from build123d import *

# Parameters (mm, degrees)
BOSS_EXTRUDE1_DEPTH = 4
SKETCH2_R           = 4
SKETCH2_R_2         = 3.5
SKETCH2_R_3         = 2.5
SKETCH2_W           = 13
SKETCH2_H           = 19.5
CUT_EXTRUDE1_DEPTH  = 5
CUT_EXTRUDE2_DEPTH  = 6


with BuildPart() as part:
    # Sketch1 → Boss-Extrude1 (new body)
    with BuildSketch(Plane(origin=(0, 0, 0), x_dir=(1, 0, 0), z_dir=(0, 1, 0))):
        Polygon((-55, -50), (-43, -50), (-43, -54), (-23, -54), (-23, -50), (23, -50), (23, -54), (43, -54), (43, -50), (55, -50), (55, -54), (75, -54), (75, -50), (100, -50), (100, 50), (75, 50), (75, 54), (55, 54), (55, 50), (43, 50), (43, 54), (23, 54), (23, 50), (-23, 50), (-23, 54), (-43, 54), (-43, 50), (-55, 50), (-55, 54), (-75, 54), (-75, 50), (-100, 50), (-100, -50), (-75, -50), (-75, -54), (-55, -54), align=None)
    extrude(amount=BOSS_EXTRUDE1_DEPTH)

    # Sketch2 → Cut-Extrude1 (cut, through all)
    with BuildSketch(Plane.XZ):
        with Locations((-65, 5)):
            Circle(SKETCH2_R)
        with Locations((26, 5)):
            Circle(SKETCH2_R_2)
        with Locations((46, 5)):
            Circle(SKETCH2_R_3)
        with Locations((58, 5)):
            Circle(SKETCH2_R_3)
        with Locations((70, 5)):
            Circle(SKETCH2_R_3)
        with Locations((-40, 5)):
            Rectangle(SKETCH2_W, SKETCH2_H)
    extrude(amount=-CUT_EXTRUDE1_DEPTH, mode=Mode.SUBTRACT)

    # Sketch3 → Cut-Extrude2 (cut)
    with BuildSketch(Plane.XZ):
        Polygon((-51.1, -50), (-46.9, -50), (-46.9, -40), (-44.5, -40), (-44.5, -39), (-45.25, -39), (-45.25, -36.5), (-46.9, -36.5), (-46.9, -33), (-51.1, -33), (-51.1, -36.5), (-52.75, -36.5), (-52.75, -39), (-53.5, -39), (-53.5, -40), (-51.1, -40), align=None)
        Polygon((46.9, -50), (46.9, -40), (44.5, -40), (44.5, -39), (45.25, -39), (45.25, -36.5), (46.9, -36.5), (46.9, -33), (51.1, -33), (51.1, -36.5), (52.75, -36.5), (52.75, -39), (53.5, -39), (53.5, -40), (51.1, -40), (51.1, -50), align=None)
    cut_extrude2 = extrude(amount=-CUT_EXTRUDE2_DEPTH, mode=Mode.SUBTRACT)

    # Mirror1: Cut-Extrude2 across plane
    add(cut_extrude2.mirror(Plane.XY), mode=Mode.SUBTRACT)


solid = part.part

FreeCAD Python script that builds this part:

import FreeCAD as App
import Part
import Sketcher


def add_polygon(sketch, points):
    """Adds a closed chain of lines whose ends are joined by coincident constraints."""
    first, n = sketch.GeometryCount, len(points)
    for a, b in zip(points, points[1:] + points[:1]):
        sketch.addGeometry(Part.LineSegment(App.Vector(*a, 0), App.Vector(*b, 0)), False)
    for i in range(n):
        sketch.addConstraint(Sketcher.Constraint("Coincident", first + i, 2, first + (i + 1) % n, 1))

doc = App.newDocument("Part")
body = doc.addObject("PartDesign::Body", "Body")

# Sketch on XZ plane
sketch1 = body.newObject("Sketcher::SketchObject", "Sketch")
sketch1.AttachmentSupport = (doc.getObject("XZ_Plane"), [""])
sketch1.MapMode = "FlatFace"
add_polygon(sketch1, [(-55, 50), (-43, 50), (-43, 54), (-23, 54), (-23, 50), (23, 50), (23, 54), (43, 54), (43, 50), (55, 50), (55, 54), (75, 54), (75, 50), (100, 50), (100, -50), (75, -50), (75, -54), (55, -54), (55, -50), (43, -50), (43, -54), (23, -54), (23, -50), (-23, -50), (-23, -54), (-43, -54), (-43, -50), (-55, -50), (-55, -54), (-75, -54), (-75, -50), (-100, -50), (-100, 50), (-75, 50), (-75, 54), (-55, 54)])  # lines 0-35
sketch1.addConstraint(Sketcher.Constraint("Horizontal", 0))
sketch1.addConstraint(Sketcher.Constraint("Vertical", 1))
sketch1.addConstraint(Sketcher.Constraint("Horizontal", 2))
sketch1.addConstraint(Sketcher.Constraint("Vertical", 3))
sketch1.addConstraint(Sketcher.Constraint("Horizontal", 4))
sketch1.addConstraint(Sketcher.Constraint("Vertical", 5))
sketch1.addConstraint(Sketcher.Constraint("Horizontal", 6))
sketch1.addConstraint(Sketcher.Constraint("Vertical", 7))
sketch1.addConstraint(Sketcher.Constraint("Horizontal", 8))
sketch1.addConstraint(Sketcher.Constraint("Vertical", 9))
sketch1.addConstraint(Sketcher.Constraint("Horizontal", 10))
sketch1.addConstraint(Sketcher.Constraint("Vertical", 11))
sketch1.addConstraint(Sketcher.Constraint("Horizontal", 12))
sketch1.addConstraint(Sketcher.Constraint("Vertical", 13))
sketch1.addConstraint(Sketcher.Constraint("Horizontal", 14))
sketch1.addConstraint(Sketcher.Constraint("Vertical", 15))
sketch1.addConstraint(Sketcher.Constraint("Horizontal", 16))
sketch1.addConstraint(Sketcher.Constraint("Vertical", 17))
sketch1.addConstraint(Sketcher.Constraint("Horizontal", 18))
sketch1.addConstraint(Sketcher.Constraint("Vertical", 19))
sketch1.addConstraint(Sketcher.Constraint("Horizontal", 20))
sketch1.addConstraint(Sketcher.Constraint("Vertical", 21))
sketch1.addConstraint(Sketcher.Constraint("Horizontal", 22))
sketch1.addConstraint(Sketcher.Constraint("Vertical", 23))
sketch1.addConstraint(Sketcher.Constraint("Horizontal", 24))
sketch1.addConstraint(Sketcher.Constraint("Vertical", 25))
sketch1.addConstraint(Sketcher.Constraint("Horizontal", 26))
sketch1.addConstraint(Sketcher.Constraint("Vertical", 27))
sketch1.addConstraint(Sketcher.Constraint("Horizontal", 28))
sketch1.addConstraint(Sketcher.Constraint("Vertical", 29))
sketch1.addConstraint(Sketcher.Constraint("Horizontal", 30))
sketch1.addConstraint(Sketcher.Constraint("Vertical", 31))
sketch1.addConstraint(Sketcher.Constraint("Horizontal", 32))
sketch1.addConstraint(Sketcher.Constraint("Vertical", 33))
sketch1.addConstraint(Sketcher.Constraint("Horizontal", 34))
sketch1.addConstraint(Sketcher.Constraint("Vertical", 35))
sketch1.addConstraint(Sketcher.Constraint("Symmetric", 0, 2, 18, 2, -1, 1))
sketch1.addConstraint(Sketcher.Constraint("Symmetric", 2, 2, 20, 2, -1, 1))
sketch1.addConstraint(Sketcher.Constraint("Symmetric", 4, 2, 22, 2, -1, 1))
sketch1.addConstraint(Sketcher.Constraint("Symmetric", 6, 2, 24, 2, -1, 1))
sketch1.addConstraint(Sketcher.Constraint("Symmetric", 8, 2, 26, 2, -1, 1))
sketch1.addConstraint(Sketcher.Constraint("Symmetric", 10, 2, 28, 2, -1, 1))
sketch1.addConstraint(Sketcher.Constraint("Symmetric", 12, 2, 30, 2, -1, 1))
sketch1.addConstraint(Sketcher.Constraint("Symmetric", 14, 2, 32, 2, -1, 1))
sketch1.addConstraint(Sketcher.Constraint("Symmetric", 16, 2, 34, 2, -1, 1))
sketch1.addConstraint(Sketcher.Constraint("Symmetric", 2, 2, 5, 2, -2))
sketch1.addConstraint(Sketcher.Constraint("Symmetric", 0, 2, 7, 2, -2))
sketch1.addConstraint(Sketcher.Constraint("Symmetric", 16, 2, 27, 2, -2))
sketch1.addConstraint(Sketcher.Constraint("Symmetric", 14, 2, 29, 2, -2))
sketch1.addConstraint(Sketcher.Constraint("Horizontal", 0, 2, 3, 2))
sketch1.addConstraint(Sketcher.Constraint("Horizontal", 6, 2, 9, 2))
sketch1.addConstraint(Sketcher.Constraint("Horizontal", 8, 2, 11, 2))
sketch1.addConstraint(Sketcher.Constraint("Equal", 6, 10))
sketch1.addConstraint(Sketcher.Constraint("DistanceX", 0, 1, 0, 2, 12.0))
sketch1.addConstraint(Sketcher.Constraint("DistanceX", 2, 1, 2, 2, 20.0))
sketch1.addConstraint(Sketcher.Constraint("DistanceX", 4, 1, 4, 2, 46.0))
sketch1.addConstraint(Sketcher.Constraint("DistanceX", 12, 1, 12, 2, 25.0))
sketch1.addConstraint(Sketcher.Constraint("DistanceY", 1, 1, 1, 2, 4.0))
sketch1.addConstraint(Sketcher.Constraint("DistanceY", 13, 2, 13, 1, 100.0))
pad1 = body.newObject("PartDesign::Pad", "Pad")
pad1.Profile = sketch1
pad1.Length = 4
pad1.Reversed = True

# Sketch on XZ plane
sketch2 = body.newObject("Sketcher::SketchObject", "Sketch001")
sketch2.AttachmentSupport = (doc.getObject("XZ_Plane"), [""])
sketch2.MapMode = "FlatFace"
sketch2.addGeometry(Part.Circle(App.Vector(-65, 5, 0), App.Vector(0, 0, 1), 4), False)  # 0
sketch2.addGeometry(Part.Circle(App.Vector(26, 5, 0), App.Vector(0, 0, 1), 3.5), False)  # 1
sketch2.addGeometry(Part.Circle(App.Vector(46, 5, 0), App.Vector(0, 0, 1), 2.5), False)  # 2
sketch2.addGeometry(Part.Circle(App.Vector(58, 5, 0), App.Vector(0, 0, 1), 2.5), False)  # 3
sketch2.addGeometry(Part.Circle(App.Vector(70, 5, 0), App.Vector(0, 0, 1), 2.5), False)  # 4
add_polygon(sketch2, [(-46.5, 14.8), (-46.5, -4.8), (-33.5, -4.8), (-33.5, 14.8)])  # lines 5-8
sketch2.addConstraint(Sketcher.Constraint("Vertical", 5))
sketch2.addConstraint(Sketcher.Constraint("Horizontal", 6))
sketch2.addConstraint(Sketcher.Constraint("Vertical", 7))
sketch2.addConstraint(Sketcher.Constraint("Horizontal", 8))
sketch2.addConstraint(Sketcher.Constraint("Equal", 2, 3))
sketch2.addConstraint(Sketcher.Constraint("Equal", 3, 4))
sketch2.addConstraint(Sketcher.Constraint("Horizontal", 0, 3, 1, 3))
sketch2.addConstraint(Sketcher.Constraint("Horizontal", 1, 3, 2, 3))
sketch2.addConstraint(Sketcher.Constraint("Horizontal", 2, 3, 3, 3))
sketch2.addConstraint(Sketcher.Constraint("Horizontal", 3, 3, 4, 3))
sketch2.addConstraint(Sketcher.Constraint("Diameter", 0, 8.0))
sketch2.addConstraint(Sketcher.Constraint("Diameter", 1, 7.0))
sketch2.addConstraint(Sketcher.Constraint("Diameter", 2, 5.0))
sketch2.addConstraint(Sketcher.Constraint("DistanceX", 6, 1, 6, 2, 13.0))
sketch2.addConstraint(Sketcher.Constraint("DistanceY", 5, 2, 5, 1, 19.5))
sketch2.addConstraint(Sketcher.Constraint("DistanceX", 0, 3, -1, 1, 65.0))
sketch2.addConstraint(Sketcher.Constraint("DistanceY", -1, 1, 0, 3, 5.0))
sketch2.addConstraint(Sketcher.Constraint("DistanceX", -1, 1, 1, 3, 26.0))
sketch2.addConstraint(Sketcher.Constraint("DistanceX", -1, 1, 2, 3, 46.0))
sketch2.addConstraint(Sketcher.Constraint("DistanceX", -1, 1, 3, 3, 58.0))
sketch2.addConstraint(Sketcher.Constraint("DistanceX", -1, 1, 4, 3, 70.0))
sketch2.addConstraint(Sketcher.Constraint("DistanceX", 5, 2, -1, 1, 46.5))
sketch2.addConstraint(Sketcher.Constraint("DistanceY", 5, 2, -1, 1, 4.75))
pocket1 = body.newObject("PartDesign::Pocket", "Pocket")
pocket1.Profile = sketch2
pocket1.Type = "ThroughAll"

# Sketch on XZ plane
sketch3 = body.newObject("Sketcher::SketchObject", "Sketch002")
sketch3.AttachmentSupport = (doc.getObject("XZ_Plane"), [""])
sketch3.MapMode = "FlatFace"
add_polygon(sketch3, [(-51.1, -50), (-46.9, -50), (-46.9, -40), (-44.5, -40), (-44.5, -39), (-45.2, -39), (-45.2, -36.5), (-46.9, -36.5), (-46.9, -33), (-51.1, -33), (-51.1, -36.5), (-52.8, -36.5), (-52.8, -39), (-53.5, -39), (-53.5, -40), (-51.1, -40)])  # lines 0-15
add_polygon(sketch3, [(46.9, -40), (46.9, -50), (51.1, -50), (51.1, -40), (53.5, -40), (53.5, -39), (52.8, -39), (52.8, -36.5), (51.1, -36.5), (51.1, -33), (46.9, -33), (46.9, -36.5), (45.2, -36.5), (45.2, -39), (44.5, -39), (44.5, -40)])  # lines 16-31
sketch3.addConstraint(Sketcher.Constraint("Horizontal", 0))
sketch3.addConstraint(Sketcher.Constraint("Vertical", 1))
sketch3.addConstraint(Sketcher.Constraint("Horizontal", 2))
sketch3.addConstraint(Sketcher.Constraint("Vertical", 3))
sketch3.addConstraint(Sketcher.Constraint("Horizontal", 4))
sketch3.addConstraint(Sketcher.Constraint("Vertical", 5))
sketch3.addConstraint(Sketcher.Constraint("Horizontal", 6))
sketch3.addConstraint(Sketcher.Constraint("Vertical", 7))
sketch3.addConstraint(Sketcher.Constraint("Horizontal", 8))
sketch3.addConstraint(Sketcher.Constraint("Vertical", 9))
sketch3.addConstraint(Sketcher.Constraint("Horizontal", 10))
sketch3.addConstraint(Sketcher.Constraint("Vertical", 11))
sketch3.addConstraint(Sketcher.Constraint("Horizontal", 12))
sketch3.addConstraint(Sketcher.Constraint("Vertical", 13))
sketch3.addConstraint(Sketcher.Constraint("Horizontal", 14))
sketch3.addConstraint(Sketcher.Constraint("Vertical", 15))
sketch3.addConstraint(Sketcher.Constraint("Vertical", 16))
sketch3.addConstraint(Sketcher.Constraint("Horizontal", 17))
sketch3.addConstraint(Sketcher.Constraint("Vertical", 18))
sketch3.addConstraint(Sketcher.Constraint("Horizontal", 19))
sketch3.addConstraint(Sketcher.Constraint("Vertical", 20))
sketch3.addConstraint(Sketcher.Constraint("Horizontal", 21))
sketch3.addConstraint(Sketcher.Constraint("Vertical", 22))
sketch3.addConstraint(Sketcher.Constraint("Horizontal", 23))
sketch3.addConstraint(Sketcher.Constraint("Vertical", 24))
sketch3.addConstraint(Sketcher.Constraint("Horizontal", 25))
sketch3.addConstraint(Sketcher.Constraint("Vertical", 26))
sketch3.addConstraint(Sketcher.Constraint("Horizontal", 27))
sketch3.addConstraint(Sketcher.Constraint("Vertical", 28))
sketch3.addConstraint(Sketcher.Constraint("Horizontal", 29))
sketch3.addConstraint(Sketcher.Constraint("Vertical", 30))
sketch3.addConstraint(Sketcher.Constraint("Horizontal", 31))
sketch3.addConstraint(Sketcher.Constraint("Symmetric", 0, 2, 16, 2, -2))
sketch3.addConstraint(Sketcher.Constraint("Symmetric", 14, 2, 18, 2, -2))
sketch3.addConstraint(Sketcher.Constraint("Symmetric", 12, 2, 20, 2, -2))
sketch3.addConstraint(Sketcher.Constraint("Symmetric", 10, 2, 22, 2, -2))
sketch3.addConstraint(Sketcher.Constraint("Symmetric", 8, 2, 24, 2, -2))
sketch3.addConstraint(Sketcher.Constraint("Symmetric", 6, 2, 26, 2, -2))
sketch3.addConstraint(Sketcher.Constraint("Symmetric", 4, 2, 28, 2, -2))
sketch3.addConstraint(Sketcher.Constraint("Symmetric", 2, 2, 30, 2, -2))
sketch3.addConstraint(Sketcher.Constraint("Horizontal", 6, 2, 9, 2))
sketch3.addConstraint(Sketcher.Constraint("Horizontal", 4, 2, 11, 2))
sketch3.addConstraint(Sketcher.Constraint("Horizontal", 2, 2, 13, 2))
sketch3.addConstraint(Sketcher.Constraint("Vertical", 1, 2, 6, 2))
sketch3.addConstraint(Sketcher.Constraint("Vertical", 9, 2, 14, 2))
sketch3.addConstraint(Sketcher.Constraint("Equal", 6, 10))
sketch3.addConstraint(Sketcher.Constraint("Equal", 4, 12))
sketch3.addConstraint(Sketcher.Constraint("DistanceY", 1, 1, 1, 2, 10.0))
sketch3.addConstraint(Sketcher.Constraint("DistanceY", 3, 1, 3, 2, 1.0))
sketch3.addConstraint(Sketcher.Constraint("DistanceX", 0, 1, 0, 2, 4.2))
sketch3.addConstraint(Sketcher.Constraint("DistanceX", 2, 1, 2, 2, 2.4))
sketch3.addConstraint(Sketcher.Constraint("DistanceY", 5, 1, 5, 2, 2.5))
sketch3.addConstraint(Sketcher.Constraint("DistanceY", 7, 1, 7, 2, 3.5))
sketch3.addConstraint(Sketcher.Constraint("DistanceY", 0, 2, -1, 1, 50.0))
sketch3.addConstraint(Sketcher.Constraint("DistanceX", 2, 2, 19, 2, 98.0))
sketch3.addConstraint(Sketcher.Constraint("DistanceX", 4, 2, 4, 1, 0.75))
pocket2 = body.newObject("PartDesign::Pocket", "Pocket001")
pocket2.Profile = sketch3
pocket2.Length = 6
doc.recompute()

mirrored = body.newObject("PartDesign::Mirrored", "Mirrored")
mirrored.Originals = [pocket2]
mirrored.MirrorPlane = (doc.getObject("XY_Plane"), [""])
body.Tip = mirrored

doc.recompute()
